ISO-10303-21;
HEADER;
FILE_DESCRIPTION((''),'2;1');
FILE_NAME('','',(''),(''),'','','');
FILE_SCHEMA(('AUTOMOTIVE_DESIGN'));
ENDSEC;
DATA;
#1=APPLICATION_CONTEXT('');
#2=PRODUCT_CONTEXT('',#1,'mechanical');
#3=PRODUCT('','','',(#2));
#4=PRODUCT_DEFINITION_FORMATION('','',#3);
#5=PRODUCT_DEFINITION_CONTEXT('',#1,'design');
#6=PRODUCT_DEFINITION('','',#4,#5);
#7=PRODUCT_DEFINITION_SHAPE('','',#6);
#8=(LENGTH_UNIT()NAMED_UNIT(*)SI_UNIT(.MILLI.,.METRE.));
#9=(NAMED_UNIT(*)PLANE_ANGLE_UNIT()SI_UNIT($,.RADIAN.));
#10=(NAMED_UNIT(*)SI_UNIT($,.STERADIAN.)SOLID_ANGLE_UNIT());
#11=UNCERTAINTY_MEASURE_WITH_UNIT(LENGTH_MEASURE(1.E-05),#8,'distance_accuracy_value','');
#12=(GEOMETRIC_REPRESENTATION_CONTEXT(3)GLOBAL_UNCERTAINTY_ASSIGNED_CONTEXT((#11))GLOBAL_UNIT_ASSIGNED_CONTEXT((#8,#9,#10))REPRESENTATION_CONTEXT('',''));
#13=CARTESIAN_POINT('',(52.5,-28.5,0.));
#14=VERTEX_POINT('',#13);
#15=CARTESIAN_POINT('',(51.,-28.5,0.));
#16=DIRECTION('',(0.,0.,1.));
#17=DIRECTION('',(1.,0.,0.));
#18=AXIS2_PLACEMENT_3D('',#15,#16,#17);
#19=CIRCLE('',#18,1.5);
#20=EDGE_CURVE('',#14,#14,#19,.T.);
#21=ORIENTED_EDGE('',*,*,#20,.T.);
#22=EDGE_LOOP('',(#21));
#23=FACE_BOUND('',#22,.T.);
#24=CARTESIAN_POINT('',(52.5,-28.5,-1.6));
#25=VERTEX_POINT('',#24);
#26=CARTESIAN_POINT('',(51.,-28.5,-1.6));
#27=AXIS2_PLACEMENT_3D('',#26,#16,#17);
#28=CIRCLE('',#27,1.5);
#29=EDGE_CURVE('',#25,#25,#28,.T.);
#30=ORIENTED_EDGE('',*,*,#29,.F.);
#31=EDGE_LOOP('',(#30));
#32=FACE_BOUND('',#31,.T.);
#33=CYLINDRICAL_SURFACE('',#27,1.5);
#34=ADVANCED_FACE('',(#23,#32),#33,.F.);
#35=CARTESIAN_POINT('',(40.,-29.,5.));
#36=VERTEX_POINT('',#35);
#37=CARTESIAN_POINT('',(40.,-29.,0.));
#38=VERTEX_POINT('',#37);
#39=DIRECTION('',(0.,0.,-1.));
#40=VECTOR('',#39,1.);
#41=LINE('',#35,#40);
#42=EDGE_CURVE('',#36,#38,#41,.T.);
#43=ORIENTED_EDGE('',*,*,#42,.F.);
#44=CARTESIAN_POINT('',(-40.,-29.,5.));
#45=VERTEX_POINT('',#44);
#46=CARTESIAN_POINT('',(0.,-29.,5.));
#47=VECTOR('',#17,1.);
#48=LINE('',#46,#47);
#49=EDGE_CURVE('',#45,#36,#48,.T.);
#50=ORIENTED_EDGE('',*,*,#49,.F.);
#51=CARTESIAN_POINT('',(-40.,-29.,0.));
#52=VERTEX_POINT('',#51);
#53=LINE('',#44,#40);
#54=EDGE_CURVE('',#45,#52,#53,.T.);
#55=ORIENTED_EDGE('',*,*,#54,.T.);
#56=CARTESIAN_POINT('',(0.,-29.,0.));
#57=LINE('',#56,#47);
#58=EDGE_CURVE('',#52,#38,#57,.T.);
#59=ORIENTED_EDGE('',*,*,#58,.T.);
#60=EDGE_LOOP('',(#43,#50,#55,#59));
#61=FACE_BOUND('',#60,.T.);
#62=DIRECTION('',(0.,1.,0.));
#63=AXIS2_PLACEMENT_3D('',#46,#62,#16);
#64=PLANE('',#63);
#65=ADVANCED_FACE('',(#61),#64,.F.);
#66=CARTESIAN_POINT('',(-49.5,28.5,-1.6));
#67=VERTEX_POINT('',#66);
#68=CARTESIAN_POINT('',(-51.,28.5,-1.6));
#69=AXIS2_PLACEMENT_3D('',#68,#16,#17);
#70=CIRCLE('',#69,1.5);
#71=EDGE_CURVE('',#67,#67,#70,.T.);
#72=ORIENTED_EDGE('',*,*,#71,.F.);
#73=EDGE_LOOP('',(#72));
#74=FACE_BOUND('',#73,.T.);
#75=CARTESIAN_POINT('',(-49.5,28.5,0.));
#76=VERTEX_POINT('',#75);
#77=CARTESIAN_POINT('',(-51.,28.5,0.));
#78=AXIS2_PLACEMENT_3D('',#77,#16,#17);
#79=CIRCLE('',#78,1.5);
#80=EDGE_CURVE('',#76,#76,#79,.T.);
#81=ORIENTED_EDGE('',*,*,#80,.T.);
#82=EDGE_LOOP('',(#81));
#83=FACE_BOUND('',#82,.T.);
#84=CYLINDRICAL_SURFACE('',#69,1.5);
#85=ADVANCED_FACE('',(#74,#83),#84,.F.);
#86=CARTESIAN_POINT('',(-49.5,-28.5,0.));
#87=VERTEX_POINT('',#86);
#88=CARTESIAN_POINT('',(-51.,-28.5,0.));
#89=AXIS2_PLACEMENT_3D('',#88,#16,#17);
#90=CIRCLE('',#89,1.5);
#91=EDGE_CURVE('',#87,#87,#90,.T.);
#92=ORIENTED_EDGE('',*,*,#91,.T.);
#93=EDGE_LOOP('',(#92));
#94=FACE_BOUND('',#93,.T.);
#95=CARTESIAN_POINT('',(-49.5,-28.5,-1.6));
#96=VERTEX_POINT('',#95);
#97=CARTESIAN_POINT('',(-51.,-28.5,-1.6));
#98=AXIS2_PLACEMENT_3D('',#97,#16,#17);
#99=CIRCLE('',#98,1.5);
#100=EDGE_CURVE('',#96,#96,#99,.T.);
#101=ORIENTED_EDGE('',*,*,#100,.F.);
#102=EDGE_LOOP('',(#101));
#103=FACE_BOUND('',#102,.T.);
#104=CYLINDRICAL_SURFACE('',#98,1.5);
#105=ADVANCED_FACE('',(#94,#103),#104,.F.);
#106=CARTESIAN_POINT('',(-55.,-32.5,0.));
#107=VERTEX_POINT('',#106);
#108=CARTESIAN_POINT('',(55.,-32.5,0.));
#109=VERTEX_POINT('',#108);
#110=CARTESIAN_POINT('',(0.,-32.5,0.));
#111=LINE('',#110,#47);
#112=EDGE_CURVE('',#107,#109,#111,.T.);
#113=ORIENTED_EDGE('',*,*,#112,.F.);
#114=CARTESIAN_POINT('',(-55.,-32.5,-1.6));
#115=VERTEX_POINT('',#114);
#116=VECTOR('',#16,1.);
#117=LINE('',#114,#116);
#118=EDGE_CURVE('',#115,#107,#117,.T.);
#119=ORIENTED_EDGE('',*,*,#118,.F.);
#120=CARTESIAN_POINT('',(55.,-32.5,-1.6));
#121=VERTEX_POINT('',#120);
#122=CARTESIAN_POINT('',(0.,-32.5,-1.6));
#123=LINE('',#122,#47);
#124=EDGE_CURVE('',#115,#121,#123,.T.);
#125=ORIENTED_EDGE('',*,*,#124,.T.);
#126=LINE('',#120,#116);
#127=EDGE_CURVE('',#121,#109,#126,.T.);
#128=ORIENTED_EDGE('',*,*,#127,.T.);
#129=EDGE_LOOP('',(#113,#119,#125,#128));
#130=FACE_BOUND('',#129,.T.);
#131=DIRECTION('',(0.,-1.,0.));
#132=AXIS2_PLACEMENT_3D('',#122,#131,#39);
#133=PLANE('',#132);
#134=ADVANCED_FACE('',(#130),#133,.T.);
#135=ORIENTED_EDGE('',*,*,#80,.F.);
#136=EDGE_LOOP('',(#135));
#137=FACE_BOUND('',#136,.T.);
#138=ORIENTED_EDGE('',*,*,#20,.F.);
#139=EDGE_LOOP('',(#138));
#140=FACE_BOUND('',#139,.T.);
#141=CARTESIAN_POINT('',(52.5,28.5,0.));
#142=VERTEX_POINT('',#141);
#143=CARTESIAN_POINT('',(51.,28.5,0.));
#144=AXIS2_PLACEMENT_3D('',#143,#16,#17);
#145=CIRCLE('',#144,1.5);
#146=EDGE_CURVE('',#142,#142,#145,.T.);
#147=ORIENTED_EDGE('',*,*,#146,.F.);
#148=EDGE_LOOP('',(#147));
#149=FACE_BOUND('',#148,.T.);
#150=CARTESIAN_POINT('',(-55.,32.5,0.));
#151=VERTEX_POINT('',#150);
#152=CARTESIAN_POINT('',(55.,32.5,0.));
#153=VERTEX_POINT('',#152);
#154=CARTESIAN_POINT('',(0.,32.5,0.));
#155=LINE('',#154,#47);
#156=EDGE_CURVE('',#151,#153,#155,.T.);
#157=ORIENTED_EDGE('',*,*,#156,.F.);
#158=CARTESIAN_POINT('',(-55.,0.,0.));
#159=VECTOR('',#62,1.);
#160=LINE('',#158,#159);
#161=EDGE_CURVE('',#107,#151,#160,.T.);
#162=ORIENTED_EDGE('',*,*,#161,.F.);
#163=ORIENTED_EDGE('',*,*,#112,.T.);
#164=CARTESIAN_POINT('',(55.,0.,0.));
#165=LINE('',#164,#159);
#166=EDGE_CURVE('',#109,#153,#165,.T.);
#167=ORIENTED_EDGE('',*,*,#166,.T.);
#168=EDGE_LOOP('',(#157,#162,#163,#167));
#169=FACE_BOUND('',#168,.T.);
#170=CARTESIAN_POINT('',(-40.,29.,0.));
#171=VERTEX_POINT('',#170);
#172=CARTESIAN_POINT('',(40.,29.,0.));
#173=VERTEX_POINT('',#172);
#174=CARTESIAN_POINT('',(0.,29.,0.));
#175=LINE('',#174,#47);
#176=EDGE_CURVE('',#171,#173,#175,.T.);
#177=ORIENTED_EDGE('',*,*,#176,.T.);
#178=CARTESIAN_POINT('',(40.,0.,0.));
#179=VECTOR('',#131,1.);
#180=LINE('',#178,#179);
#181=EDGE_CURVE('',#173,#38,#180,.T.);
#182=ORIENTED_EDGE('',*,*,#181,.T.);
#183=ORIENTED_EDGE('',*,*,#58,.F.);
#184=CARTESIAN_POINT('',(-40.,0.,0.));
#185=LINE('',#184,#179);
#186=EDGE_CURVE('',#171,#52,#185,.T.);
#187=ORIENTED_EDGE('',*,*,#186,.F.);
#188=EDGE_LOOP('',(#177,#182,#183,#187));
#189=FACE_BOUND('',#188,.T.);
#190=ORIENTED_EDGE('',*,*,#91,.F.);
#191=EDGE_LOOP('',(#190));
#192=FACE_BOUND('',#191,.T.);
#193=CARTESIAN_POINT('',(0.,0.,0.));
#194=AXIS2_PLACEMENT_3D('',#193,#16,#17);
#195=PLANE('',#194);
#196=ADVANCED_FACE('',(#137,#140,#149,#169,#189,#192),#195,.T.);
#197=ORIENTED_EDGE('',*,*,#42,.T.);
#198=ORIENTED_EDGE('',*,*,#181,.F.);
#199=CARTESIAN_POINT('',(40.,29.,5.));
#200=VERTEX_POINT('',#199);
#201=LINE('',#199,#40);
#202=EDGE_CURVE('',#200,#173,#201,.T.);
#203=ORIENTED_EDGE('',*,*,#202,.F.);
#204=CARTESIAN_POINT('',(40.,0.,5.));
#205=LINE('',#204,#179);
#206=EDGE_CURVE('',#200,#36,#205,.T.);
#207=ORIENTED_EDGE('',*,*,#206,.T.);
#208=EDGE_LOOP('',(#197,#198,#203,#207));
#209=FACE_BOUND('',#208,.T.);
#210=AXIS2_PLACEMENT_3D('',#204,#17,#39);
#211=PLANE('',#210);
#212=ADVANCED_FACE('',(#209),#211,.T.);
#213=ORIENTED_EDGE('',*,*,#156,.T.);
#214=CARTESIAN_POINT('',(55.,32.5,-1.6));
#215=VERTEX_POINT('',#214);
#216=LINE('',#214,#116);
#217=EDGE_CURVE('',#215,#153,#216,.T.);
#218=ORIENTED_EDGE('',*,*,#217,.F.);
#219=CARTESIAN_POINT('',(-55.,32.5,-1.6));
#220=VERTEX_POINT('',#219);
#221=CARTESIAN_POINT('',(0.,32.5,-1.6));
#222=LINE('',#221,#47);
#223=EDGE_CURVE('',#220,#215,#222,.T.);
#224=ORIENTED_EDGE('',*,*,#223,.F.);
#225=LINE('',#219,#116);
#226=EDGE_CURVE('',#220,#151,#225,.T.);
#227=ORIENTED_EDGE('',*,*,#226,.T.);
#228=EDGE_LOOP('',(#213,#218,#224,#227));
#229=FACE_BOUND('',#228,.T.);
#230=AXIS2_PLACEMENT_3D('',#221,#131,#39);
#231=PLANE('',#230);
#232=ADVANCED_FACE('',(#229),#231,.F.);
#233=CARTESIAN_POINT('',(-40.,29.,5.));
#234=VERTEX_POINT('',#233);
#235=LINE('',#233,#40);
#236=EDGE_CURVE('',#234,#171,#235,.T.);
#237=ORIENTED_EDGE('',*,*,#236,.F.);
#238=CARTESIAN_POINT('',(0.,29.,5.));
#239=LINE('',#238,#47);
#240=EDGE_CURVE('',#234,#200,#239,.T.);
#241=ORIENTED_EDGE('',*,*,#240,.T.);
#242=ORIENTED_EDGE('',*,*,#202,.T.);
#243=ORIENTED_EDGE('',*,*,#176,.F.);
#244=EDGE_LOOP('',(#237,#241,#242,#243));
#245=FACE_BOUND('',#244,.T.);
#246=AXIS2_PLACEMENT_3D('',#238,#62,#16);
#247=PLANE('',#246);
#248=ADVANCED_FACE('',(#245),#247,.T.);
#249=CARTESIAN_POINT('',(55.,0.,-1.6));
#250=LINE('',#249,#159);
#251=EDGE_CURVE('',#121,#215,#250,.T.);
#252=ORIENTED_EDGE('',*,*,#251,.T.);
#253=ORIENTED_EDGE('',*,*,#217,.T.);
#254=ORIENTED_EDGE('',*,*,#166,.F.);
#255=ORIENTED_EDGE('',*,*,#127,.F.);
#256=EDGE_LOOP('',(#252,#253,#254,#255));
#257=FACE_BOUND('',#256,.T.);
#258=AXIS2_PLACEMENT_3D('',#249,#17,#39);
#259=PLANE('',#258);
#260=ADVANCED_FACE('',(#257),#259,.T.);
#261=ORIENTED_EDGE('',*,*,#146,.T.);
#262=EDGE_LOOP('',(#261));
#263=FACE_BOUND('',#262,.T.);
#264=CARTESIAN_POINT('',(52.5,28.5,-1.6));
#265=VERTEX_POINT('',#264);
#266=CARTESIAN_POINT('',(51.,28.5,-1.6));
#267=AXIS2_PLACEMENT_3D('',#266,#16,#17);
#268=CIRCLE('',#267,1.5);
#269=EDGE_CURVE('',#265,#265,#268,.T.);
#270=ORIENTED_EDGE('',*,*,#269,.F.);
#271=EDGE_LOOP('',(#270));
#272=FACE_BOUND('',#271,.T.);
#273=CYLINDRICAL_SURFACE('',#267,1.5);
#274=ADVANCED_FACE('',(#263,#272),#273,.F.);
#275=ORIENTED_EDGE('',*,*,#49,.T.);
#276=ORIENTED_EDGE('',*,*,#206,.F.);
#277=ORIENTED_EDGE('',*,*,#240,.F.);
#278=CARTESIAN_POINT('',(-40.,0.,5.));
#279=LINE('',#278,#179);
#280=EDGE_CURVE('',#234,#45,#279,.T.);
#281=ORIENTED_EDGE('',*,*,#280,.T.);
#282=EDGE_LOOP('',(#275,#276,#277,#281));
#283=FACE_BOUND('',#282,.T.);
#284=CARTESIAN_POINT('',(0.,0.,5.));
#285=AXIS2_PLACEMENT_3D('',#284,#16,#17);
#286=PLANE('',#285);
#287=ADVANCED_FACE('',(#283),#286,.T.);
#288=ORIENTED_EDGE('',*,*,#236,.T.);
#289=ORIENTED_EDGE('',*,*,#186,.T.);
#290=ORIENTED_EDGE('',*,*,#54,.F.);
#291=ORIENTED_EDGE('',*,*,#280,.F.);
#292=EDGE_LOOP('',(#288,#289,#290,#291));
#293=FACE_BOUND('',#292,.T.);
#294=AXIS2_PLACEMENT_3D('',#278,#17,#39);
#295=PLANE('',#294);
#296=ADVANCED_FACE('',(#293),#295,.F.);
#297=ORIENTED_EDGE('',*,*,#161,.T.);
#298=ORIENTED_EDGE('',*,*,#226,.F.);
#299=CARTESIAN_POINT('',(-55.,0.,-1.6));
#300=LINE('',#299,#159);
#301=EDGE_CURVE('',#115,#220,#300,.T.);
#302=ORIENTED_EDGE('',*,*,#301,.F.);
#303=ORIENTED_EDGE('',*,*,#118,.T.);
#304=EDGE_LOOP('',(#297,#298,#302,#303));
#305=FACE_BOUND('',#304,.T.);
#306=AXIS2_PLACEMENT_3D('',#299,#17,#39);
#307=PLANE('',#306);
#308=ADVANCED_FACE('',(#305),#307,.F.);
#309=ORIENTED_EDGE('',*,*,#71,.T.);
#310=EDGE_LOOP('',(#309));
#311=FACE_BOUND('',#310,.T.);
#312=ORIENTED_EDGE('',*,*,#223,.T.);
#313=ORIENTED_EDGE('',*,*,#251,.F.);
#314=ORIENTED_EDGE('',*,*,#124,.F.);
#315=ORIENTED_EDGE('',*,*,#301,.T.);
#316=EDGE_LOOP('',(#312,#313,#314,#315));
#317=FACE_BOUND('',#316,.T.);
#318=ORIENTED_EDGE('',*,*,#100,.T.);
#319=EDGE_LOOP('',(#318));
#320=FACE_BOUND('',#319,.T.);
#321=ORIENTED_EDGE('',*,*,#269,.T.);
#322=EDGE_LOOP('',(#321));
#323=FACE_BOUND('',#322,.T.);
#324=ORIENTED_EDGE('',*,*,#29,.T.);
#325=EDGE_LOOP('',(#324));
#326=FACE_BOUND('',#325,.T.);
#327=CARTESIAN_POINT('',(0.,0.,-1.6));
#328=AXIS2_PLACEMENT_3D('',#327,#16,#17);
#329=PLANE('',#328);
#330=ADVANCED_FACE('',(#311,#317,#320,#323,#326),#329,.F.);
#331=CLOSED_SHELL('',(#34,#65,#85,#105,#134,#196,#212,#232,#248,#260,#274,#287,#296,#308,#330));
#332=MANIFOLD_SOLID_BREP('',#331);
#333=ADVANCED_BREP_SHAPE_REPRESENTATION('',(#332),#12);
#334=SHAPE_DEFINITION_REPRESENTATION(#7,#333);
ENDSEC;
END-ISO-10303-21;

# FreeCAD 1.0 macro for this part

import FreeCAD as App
import Part
import Sketcher
from FreeCAD import Vector

doc = App.newDocument("Part")
params = doc.addObject("Spreadsheet::Sheet", "Params")
for row, (alias, value) in enumerate([
    ("sketch1_diameter", "3 mm"),
    ("sketch1_width", "110 mm"),
    ("sketch1_height", "65 mm"),
    ("pad1_length", "1.6 mm"),
    ("sketch2_width", "80 mm"),
    ("sketch2_height", "58 mm"),
    ("pad2_length", "5 mm"),
], start=1):
    params.set(f"A{row}", alias)
    params.set(f"B{row}", "=" + value)
    params.setAlias(f"B{row}", alias)

body = doc.addObject("PartDesign::Body", "Body")

# Sketch on XY plane
sketch1 = body.newObject("Sketcher::SketchObject", "Sketch")
sketch1.AttachmentSupport = (doc.getObject("XY_Plane"), [""])
sketch1.MapMode = "FlatFace"
sketch1.addGeometry([
    Part.LineSegment(Vector(-55, 32.5, 0), Vector(-55, -32.5, 0)),  # 0
    Part.LineSegment(Vector(-55, -32.5, 0), Vector(55, -32.5, 0)),  # 1
    Part.LineSegment(Vector(55, -32.5, 0), Vector(55, 32.5, 0)),  # 2
    Part.LineSegment(Vector(55, 32.5, 0), Vector(-55, 32.5, 0)),  # 3
    Part.Circle(Vector(-51, -28.5, 0), Vector(0, 0, 1), 1.5),  # 4
    Part.Circle(Vector(51, -28.5, 0), Vector(0, 0, 1), 1.5),  # 5
    Part.Circle(Vector(-51, 28.5, 0), Vector(0, 0, 1), 1.5),  # 6
    Part.Circle(Vector(51, 28.5, 0), Vector(0, 0, 1), 1.5),  # 7
], False)
sketch1.addConstraint([
    Sketcher.Constraint("Coincident", 0, 2, 1, 1),
    Sketcher.Constraint("Coincident", 1, 2, 2, 1),
    Sketcher.Constraint("Coincident", 2, 2, 3, 1),
    Sketcher.Constraint("Coincident", 3, 2, 0, 1),
    Sketcher.Constraint("Vertical", 0),
    Sketcher.Constraint("Horizontal", 1),
    Sketcher.Constraint("Vertical", 2),
    Sketcher.Constraint("Horizontal", 3),
    Sketcher.Constraint("Equal", 4, 5),
    Sketcher.Constraint("Equal", 5, 6),
    Sketcher.Constraint("Equal", 6, 7),
    Sketcher.Constraint("Symmetric", 5, 3, 6, 3, -1, 1),
    Sketcher.Constraint("Symmetric", 4, 3, 7, 3, -1, 1),
    Sketcher.Constraint("Symmetric", 0, 2, 2, 2, -1, 1),
    Sketcher.Constraint("Symmetric", 4, 3, 5, 3, -2),
    Sketcher.Constraint("Diameter", 4, 3.0),
    Sketcher.Constraint("DistanceX", 1, 1, 1, 2, 110.0),
    Sketcher.Constraint("DistanceY", 0, 2, 0, 1, 65.0),
    Sketcher.Constraint("DistanceX", 4, 3, -1, 1, 51.0),
    Sketcher.Constraint("DistanceY", 4, 3, 6, 3, 57.0),
])
sketch1.setExpression("Constraints[15]", "Params.sketch1_diameter")
sketch1.setExpression("Constraints[16]", "Params.sketch1_width")
sketch1.setExpression("Constraints[17]", "Params.sketch1_height")
pad1 = body.newObject("PartDesign::Pad", "Pad")
pad1.Profile = sketch1
pad1.setExpression("Length", "Params.pad1_length")
pad1.Reversed = True

# Sketch on XY plane
sketch2 = body.newObject("Sketcher::SketchObject", "Sketch001")
sketch2.AttachmentSupport = (doc.getObject("XY_Plane"), [""])
sketch2.MapMode = "FlatFace"
sketch2.addGeometry([
    Part.LineSegment(Vector(-40, 29, 0), Vector(-40, -29, 0)),
    Part.LineSegment(Vector(-40, -29, 0), Vector(40, -29, 0)),
    Part.LineSegment(Vector(40, -29, 0), Vector(40, 29, 0)),
    Part.LineSegment(Vector(40, 29, 0), Vector(-40, 29, 0)),
], False)
sketch2.addConstraint([
    Sketcher.Constraint("Coincident", 0, 2, 1, 1),
    Sketcher.Constraint("Coincident", 1, 2, 2, 1),
    Sketcher.Constraint("Coincident", 2, 2, 3, 1),
    Sketcher.Constraint("Coincident", 3, 2, 0, 1),
    Sketcher.Constraint("Vertical", 0),
    Sketcher.Constraint("Horizontal", 1),
    Sketcher.Constraint("Vertical", 2),
    Sketcher.Constraint("Horizontal", 3),
    Sketcher.Constraint("Symmetric", 0, 2, 2, 2, -1, 1),
    Sketcher.Constraint("DistanceX", 1, 1, 1, 2, 80.0),
    Sketcher.Constraint("DistanceY", 0, 2, 0, 1, 58.0),
])
sketch2.setExpression("Constraints[9]", "Params.sketch2_width")
sketch2.setExpression("Constraints[10]", "Params.sketch2_height")
pad2 = body.newObject("PartDesign::Pad", "Pad001")
pad2.Profile = sketch2
pad2.setExpression("Length", "Params.pad2_length")

doc.recompute()
